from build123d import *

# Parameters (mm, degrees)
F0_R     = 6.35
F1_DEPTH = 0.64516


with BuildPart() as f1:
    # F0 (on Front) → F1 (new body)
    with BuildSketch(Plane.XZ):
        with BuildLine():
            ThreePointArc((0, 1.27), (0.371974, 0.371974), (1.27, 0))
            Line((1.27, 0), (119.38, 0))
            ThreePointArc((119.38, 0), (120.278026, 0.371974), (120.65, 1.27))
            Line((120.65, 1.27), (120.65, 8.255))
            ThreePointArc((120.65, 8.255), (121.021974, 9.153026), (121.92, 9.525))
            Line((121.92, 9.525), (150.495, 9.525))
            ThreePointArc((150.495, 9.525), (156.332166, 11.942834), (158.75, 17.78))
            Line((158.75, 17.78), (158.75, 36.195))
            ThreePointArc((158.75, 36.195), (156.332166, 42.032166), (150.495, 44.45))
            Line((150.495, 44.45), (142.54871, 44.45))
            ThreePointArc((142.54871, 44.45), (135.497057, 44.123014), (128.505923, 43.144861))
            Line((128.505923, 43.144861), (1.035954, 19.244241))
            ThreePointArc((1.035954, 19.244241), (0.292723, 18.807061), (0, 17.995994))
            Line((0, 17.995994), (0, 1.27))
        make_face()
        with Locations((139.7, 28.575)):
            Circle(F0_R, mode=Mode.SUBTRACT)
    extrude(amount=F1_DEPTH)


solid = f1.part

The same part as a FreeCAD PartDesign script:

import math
import FreeCAD as App
import Part
import Sketcher

V = App.Vector
Q = App.Units.Quantity

doc = App.newDocument("Part")
params = doc.addObject("Spreadsheet::Sheet", "Params")
for row, (alias, value) in enumerate([
    ("sketch1_diameter", "0.5 in"),
    ("sketch1_radius", "0.0499999 in"),
    ("sketch1_radius2", "0.3250001 in"),
    ("sketch1_width", "4.65 in"),
    ("sketch1_width2", "1.125 in"),
    ("pad1_length", "0.0254 in"),
], start=1):
    params.set(f"A{row}", alias)
    params.set(f"B{row}", "=" + value)
    params.setAlias(f"B{row}", alias)

body = doc.addObject("PartDesign::Body", "Body")

sketch1 = body.newObject("Sketcher::SketchObject", "Sketch")
sketch1.AttachmentSupport = (doc.getObject("XZ_Plane"), [""])
sketch1.MapMode = "FlatFace"
sketch1.addGeometry(Part.ArcOfCircle(Part.Circle(V(1.3, 1.3, 0), V(0, 0, 1), 1.3), math.radians(180), math.radians(270)), False)
sketch1.addGeometry(Part.LineSegment(V(1.3, 0, 0), V(119.4, 0, 0)), False)
sketch1.addGeometry(Part.ArcOfCircle(Part.Circle(V(119.4, 1.3, 0), V(0, 0, 1), 1.3), math.radians(-90), math.radians(0)), False)
sketch1.addGeometry(Part.LineSegment(V(120.7, 1.3, 0), V(120.7, 8.3, 0)), False)
sketch1.addGeometry(Part.ArcOfCircle(Part.Circle(V(121.9, 8.3, 0), V(0, 0, 1), 1.3), math.radians(90), math.radians(180)), False)
sketch1.addGeometry(Part.LineSegment(V(121.9, 9.5, 0), V(150.5, 9.5, 0)), False)
sketch1.addGeometry(Part.ArcOfCircle(Part.Circle(V(150.5, 17.8, 0), V(0, 0, 1), 8.3), math.radians(-90), math.radians(0)), False)
sketch1.addGeometry(Part.LineSegment(V(158.8, 17.8, 0), V(158.8, 36.2, 0)), False)
sketch1.addGeometry(Part.ArcOfCircle(Part.Circle(V(150.5, 36.2, 0), V(0, 0, 1), 8.3), math.radians(0), math.radians(90)), False)
sketch1.addGeometry(Part.LineSegment(V(150.5, 44.5, 0), V(142.5, 44.5, 0)), False)
sketch1.addGeometry(Part.ArcOfCircle(Part.Circle(V(142.5, -31.7, 0), V(0, 0, 1), 76.2), math.radians(90), math.radians(100.62)), False)
sketch1.addGeometry(Part.LineSegment(V(128.5, 43.1, 0), V(1, 19.2, 0)), False)
sketch1.addGeometry(Part.ArcOfCircle(Part.Circle(V(1.3, 18, 0), V(0, 0, 1), 1.3), math.radians(101), math.radians(180)), False)
sketch1.addGeometry(Part.LineSegment(V(0, 18, 0), V(0, 1.3, 0)), False)
sketch1.addGeometry(Part.Circle(V(139.7, 28.6, 0), V(0, 0, 1), 6.3), False)
sketch1.addConstraint(Sketcher.Constraint("Tangent", 0, 2, 1, 1))
sketch1.addConstraint(Sketcher.Constraint("Tangent", 1, 2, 2, 1))
sketch1.addConstraint(Sketcher.Constraint("Tangent", 2, 2, 3, 1))
sketch1.addConstraint(Sketcher.Constraint("Tangent", 3, 2, 4, 2))
sketch1.addConstraint(Sketcher.Constraint("Tangent", 4, 1, 5, 1))
sketch1.addConstraint(Sketcher.Constraint("Tangent", 5, 2, 6, 1))
sketch1.addConstraint(Sketcher.Constraint("Tangent", 6, 2, 7, 1))
sketch1.addConstraint(Sketcher.Constraint("Tangent", 7, 2, 8, 1))
sketch1.addConstraint(Sketcher.Constraint("Tangent", 8, 2, 9, 1))
sketch1.addConstraint(Sketcher.Constraint("Tangent", 9, 2, 10, 1))
sketch1.addConstraint(Sketcher.Constraint("Tangent", 10, 2, 11, 1))
sketch1.addConstraint(Sketcher.Constraint("Tangent", 11, 2, 12, 1))
sketch1.addConstraint(Sketcher.Constraint("Tangent", 12, 2, 13, 1))
sketch1.addConstraint(Sketcher.Constraint("Tangent", 13, 2, 0, 1))
sketch1.addConstraint(Sketcher.Constraint("Horizontal", 1))
sketch1.addConstraint(Sketcher.Constraint("Vertical", 3))
sketch1.addConstraint(Sketcher.Constraint("Horizontal", 5))
sketch1.addConstraint(Sketcher.Constraint("Vertical", 7))
sketch1.addConstraint(Sketcher.Constraint("Horizontal", 9))
sketch1.addConstraint(Sketcher.Constraint("Vertical", 13))
sketch1.addConstraint(Sketcher.Constraint("Equal", 0, 2))
sketch1.addConstraint(Sketcher.Constraint("Equal", 2, 4))
sketch1.addConstraint(Sketcher.Constraint("Equal", 6, 8))
sketch1.addConstraint(Sketcher.Constraint("Equal", 4, 12))
sketch1.addConstraint(Sketcher.Constraint("PointOnObject", 0, 2, -1))
sketch1.addConstraint(Sketcher.Constraint("PointOnObject", 12, 2, -2))
sketch1.addConstraint(Sketcher.Constraint("Diameter", 14, Q("0.5 in")))
sketch1.addConstraint(Sketcher.Constraint("Radius", 0, Q("0.0499999 in")))
sketch1.addConstraint(Sketcher.Constraint("Radius", 6, Q("0.3250001 in")))
sketch1.addConstraint(Sketcher.Constraint("DistanceX", 1, 1, 1, 2, Q("4.65 in")))
sketch1.addConstraint(Sketcher.Constraint("DistanceY", -1, 1, 6, 3, Q("0.7000001 in")))
sketch1.addConstraint(Sketcher.Constraint("DistanceX", -1, 1, 14, 3, Q("5.5 in")))
sketch1.addConstraint(Sketcher.Constraint("DistanceY", 4, 3, 8, 3, Q("1.0999999 in")))
sketch1.addConstraint(Sketcher.Constraint("DistanceY", 14, 3, 8, 3, Q("0.2999999 in")))
sketch1.addConstraint(Sketcher.Constraint("DistanceX", 5, 1, 5, 2, Q("1.125 in")))
sketch1.addConstraint(Sketcher.Constraint("Radius", 10, Q("76.199958 mm")))
sketch1.addConstraint(Sketcher.Constraint("DistanceX", 9, 2, 9, 1, Q("7.94629 mm")))
sketch1.addConstraint(Sketcher.Constraint("DistanceY", 13, 2, 13, 1, Q("16.725994 mm")))
sketch1.setExpression("Constraints[26]", "Params.sketch1_diameter")
sketch1.setExpression("Constraints[27]", "Params.sketch1_radius")
sketch1.setExpression("Constraints[28]", "Params.sketch1_radius2")
sketch1.setExpression("Constraints[29]", "Params.sketch1_width")
sketch1.setExpression("Constraints[34]", "Params.sketch1_width2")
pad1 = body.newObject("PartDesign::Pad", "Pad")
pad1.Profile = sketch1
pad1.setExpression("Length", "Params.pad1_length")

doc.recompute()
